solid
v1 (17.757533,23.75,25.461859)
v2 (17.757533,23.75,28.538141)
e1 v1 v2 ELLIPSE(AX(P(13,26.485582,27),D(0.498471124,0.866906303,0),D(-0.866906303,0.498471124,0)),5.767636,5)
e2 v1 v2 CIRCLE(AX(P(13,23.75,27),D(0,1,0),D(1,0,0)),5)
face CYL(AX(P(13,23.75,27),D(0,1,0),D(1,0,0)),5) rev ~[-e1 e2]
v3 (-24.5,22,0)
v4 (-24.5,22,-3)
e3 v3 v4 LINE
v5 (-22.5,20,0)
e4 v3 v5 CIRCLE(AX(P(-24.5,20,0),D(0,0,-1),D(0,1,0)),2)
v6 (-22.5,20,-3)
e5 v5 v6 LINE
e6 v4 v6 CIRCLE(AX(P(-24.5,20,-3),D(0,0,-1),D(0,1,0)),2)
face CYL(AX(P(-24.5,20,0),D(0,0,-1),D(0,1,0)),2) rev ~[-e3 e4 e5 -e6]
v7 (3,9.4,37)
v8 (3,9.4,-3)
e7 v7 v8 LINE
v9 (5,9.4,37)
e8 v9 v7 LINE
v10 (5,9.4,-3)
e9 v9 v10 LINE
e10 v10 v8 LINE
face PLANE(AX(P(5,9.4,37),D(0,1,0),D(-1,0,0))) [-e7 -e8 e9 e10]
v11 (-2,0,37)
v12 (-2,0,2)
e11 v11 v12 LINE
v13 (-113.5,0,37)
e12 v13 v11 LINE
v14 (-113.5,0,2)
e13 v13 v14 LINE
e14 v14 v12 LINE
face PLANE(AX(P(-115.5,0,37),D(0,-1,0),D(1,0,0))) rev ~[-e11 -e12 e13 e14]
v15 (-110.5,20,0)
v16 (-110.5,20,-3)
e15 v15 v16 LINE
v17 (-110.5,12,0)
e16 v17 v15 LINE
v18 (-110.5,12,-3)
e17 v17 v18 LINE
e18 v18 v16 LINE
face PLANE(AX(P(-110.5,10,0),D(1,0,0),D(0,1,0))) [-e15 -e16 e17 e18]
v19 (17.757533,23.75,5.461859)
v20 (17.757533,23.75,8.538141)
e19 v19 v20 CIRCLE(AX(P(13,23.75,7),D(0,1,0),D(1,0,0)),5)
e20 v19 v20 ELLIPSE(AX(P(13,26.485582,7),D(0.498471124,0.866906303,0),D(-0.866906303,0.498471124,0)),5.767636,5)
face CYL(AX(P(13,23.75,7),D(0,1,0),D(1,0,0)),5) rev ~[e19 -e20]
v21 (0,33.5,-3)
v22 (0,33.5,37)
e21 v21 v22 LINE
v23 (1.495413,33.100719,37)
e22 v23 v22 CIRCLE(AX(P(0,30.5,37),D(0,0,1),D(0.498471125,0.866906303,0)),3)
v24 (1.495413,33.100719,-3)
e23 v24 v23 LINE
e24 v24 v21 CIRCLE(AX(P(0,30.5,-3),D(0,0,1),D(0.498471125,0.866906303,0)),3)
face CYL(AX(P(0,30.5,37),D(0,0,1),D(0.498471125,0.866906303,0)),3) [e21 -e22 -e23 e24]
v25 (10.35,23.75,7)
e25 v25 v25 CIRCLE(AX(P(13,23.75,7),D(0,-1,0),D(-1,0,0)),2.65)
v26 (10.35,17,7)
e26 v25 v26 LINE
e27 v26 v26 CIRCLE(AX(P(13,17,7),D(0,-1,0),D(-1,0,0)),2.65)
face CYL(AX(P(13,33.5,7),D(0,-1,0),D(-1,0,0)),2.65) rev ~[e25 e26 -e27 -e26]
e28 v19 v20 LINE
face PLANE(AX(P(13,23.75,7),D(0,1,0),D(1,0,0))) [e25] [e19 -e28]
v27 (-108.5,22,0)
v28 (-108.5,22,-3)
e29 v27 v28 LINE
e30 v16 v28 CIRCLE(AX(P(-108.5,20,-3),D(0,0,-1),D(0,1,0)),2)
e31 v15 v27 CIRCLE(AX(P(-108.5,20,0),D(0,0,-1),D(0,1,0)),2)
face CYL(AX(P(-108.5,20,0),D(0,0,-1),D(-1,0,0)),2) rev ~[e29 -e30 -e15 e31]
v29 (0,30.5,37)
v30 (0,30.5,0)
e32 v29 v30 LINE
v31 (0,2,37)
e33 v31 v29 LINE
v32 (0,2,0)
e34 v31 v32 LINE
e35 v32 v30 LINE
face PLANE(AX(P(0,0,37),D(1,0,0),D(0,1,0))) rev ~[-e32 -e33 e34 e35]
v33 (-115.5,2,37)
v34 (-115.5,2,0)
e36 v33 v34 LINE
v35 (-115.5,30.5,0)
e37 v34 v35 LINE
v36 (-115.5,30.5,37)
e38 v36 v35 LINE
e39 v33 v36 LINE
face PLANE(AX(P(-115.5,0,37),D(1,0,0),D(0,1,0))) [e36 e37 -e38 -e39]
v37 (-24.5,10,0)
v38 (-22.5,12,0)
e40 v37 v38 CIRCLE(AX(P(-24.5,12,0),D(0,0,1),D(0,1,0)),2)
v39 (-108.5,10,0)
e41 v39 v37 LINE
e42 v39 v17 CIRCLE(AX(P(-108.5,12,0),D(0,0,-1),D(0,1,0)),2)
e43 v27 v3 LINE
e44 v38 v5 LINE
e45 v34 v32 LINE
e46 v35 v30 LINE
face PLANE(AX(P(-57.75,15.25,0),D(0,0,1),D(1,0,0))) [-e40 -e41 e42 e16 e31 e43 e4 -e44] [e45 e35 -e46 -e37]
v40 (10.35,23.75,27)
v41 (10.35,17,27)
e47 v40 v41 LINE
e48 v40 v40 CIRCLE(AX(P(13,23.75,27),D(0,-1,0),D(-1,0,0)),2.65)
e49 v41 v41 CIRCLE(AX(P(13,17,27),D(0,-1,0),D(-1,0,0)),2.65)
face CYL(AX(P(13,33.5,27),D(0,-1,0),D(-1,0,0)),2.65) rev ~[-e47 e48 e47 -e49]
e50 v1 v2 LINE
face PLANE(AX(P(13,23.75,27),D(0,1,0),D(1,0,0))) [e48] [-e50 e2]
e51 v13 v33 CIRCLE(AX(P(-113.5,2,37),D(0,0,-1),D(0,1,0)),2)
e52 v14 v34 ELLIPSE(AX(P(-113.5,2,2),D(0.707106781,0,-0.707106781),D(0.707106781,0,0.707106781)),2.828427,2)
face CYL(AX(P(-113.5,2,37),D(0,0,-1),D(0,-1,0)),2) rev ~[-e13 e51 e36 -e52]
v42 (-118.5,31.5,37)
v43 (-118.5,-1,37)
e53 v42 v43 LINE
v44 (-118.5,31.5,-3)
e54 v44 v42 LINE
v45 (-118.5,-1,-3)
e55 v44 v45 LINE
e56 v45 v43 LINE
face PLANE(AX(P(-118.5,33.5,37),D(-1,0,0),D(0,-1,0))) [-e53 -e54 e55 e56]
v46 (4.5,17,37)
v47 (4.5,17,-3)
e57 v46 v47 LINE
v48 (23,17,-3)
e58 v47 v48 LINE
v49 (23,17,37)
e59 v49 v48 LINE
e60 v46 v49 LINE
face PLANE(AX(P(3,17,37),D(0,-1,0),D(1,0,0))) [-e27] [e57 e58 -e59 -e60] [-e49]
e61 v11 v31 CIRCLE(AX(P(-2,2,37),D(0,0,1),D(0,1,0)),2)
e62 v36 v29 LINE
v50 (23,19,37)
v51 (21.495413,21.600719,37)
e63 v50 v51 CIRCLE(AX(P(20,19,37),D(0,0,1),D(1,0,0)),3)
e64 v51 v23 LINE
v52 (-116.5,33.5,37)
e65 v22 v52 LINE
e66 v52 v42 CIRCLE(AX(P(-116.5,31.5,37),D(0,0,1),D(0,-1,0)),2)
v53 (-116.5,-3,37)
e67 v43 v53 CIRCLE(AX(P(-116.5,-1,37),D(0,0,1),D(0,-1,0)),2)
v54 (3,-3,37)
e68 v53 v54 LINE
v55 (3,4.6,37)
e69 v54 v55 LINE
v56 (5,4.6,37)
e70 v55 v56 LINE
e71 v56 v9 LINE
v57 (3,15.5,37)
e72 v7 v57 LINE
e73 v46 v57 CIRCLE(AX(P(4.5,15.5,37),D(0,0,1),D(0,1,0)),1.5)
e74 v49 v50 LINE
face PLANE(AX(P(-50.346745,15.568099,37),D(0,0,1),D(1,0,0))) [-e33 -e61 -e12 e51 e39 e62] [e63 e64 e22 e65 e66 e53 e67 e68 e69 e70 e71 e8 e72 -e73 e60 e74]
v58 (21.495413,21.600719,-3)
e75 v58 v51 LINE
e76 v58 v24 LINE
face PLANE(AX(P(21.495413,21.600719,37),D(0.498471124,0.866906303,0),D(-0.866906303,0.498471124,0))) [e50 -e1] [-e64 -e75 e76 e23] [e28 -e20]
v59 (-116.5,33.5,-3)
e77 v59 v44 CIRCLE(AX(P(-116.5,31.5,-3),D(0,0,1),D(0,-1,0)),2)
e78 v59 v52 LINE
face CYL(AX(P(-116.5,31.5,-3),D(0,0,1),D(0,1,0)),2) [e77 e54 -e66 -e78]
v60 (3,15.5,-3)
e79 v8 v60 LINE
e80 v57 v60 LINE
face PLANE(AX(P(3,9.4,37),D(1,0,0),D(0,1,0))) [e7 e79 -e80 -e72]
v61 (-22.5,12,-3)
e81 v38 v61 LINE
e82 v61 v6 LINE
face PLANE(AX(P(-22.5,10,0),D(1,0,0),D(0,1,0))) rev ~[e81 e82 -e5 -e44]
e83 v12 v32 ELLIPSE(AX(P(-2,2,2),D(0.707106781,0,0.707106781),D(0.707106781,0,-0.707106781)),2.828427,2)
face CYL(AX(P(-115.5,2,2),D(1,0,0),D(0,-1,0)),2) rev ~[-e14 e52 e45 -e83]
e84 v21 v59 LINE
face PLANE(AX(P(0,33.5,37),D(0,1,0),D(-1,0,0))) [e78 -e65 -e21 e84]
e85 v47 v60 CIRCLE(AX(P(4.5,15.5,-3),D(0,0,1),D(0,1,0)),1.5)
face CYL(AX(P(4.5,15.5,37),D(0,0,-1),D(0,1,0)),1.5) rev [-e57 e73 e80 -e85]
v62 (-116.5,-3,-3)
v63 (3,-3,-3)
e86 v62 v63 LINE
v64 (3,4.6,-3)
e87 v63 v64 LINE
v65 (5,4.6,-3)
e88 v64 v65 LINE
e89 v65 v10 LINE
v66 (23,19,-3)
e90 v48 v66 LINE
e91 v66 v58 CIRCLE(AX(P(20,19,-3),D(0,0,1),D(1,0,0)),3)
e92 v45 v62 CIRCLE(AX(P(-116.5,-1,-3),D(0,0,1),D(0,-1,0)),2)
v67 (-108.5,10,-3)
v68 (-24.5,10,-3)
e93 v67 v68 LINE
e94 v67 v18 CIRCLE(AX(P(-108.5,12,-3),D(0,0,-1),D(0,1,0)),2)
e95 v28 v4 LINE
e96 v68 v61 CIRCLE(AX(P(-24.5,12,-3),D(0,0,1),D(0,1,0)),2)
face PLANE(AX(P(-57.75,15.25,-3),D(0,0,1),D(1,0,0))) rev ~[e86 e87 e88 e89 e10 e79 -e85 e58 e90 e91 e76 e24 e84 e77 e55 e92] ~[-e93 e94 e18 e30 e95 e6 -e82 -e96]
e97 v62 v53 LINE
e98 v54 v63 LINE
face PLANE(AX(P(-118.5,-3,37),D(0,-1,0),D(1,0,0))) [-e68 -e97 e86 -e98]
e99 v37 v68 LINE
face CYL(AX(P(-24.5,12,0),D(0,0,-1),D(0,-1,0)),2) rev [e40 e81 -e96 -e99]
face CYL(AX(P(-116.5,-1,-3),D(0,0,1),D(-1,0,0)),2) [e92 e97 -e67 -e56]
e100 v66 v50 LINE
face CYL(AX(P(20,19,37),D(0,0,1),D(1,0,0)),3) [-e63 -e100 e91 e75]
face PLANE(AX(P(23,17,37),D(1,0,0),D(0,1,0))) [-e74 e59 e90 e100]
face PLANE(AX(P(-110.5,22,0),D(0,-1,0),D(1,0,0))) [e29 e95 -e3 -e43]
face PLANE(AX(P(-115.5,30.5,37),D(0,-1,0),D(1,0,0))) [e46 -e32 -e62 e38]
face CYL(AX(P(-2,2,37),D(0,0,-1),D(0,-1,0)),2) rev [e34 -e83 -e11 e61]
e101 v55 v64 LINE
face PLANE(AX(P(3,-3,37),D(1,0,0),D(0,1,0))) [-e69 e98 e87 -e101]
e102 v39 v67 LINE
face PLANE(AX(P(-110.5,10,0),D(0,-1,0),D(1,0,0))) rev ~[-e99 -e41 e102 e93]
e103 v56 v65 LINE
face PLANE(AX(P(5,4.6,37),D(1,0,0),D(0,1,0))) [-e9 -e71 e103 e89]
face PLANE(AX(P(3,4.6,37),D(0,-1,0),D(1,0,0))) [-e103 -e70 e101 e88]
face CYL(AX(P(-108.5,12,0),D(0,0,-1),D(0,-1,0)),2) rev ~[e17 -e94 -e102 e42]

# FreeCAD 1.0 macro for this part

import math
import FreeCAD as App
import Part
import Sketcher

V = App.Vector


def edges_at(feature, points):
    """Names of the edges that pass closest to the given points."""
    edges = feature.Shape.Edges
    near = lambda p: min(range(len(edges)), key=lambda i: edges[i].distToShape(Part.Vertex(*p))[0])
    return sorted({f"Edge{near(p) + 1}" for p in points})

doc = App.newDocument("Part")
body = doc.addObject("PartDesign::Body", "Body")

sketch1 = doc.addObject("Sketcher::SketchObject", "Sketch")
body.addObject(sketch1)
sketch1.AttachmentSupport = (doc.XY_Plane, [""])
sketch1.MapMode = "FlatFace"
sketch1.addGeometry([
    Part.LineSegment(V(23, 17, 0), V(23, 19, 0)),
    Part.ArcOfCircle(Part.Circle(V(20, 19, 0), V(0, 0, 1), 3), math.radians(0), math.radians(60.101098)),
    Part.LineSegment(V(21.495413, 21.600719, 0), V(1.495413, 33.100719, 0)),
    Part.ArcOfCircle(Part.Circle(V(0, 30.5, 0), V(0, 0, 1), 3), math.radians(60.101098), math.radians(90)),
    Part.LineSegment(V(0, 33.5, 0), V(-118.5, 33.5, 0)),
    Part.LineSegment(V(-118.5, 33.5, 0), V(-118.5, -3, 0)),
    Part.LineSegment(V(-118.5, -3, 0), V(3, -3, 0)),
    Part.LineSegment(V(3, -3, 0), V(3, 4.6, 0)),
    Part.LineSegment(V(3, 4.6, 0), V(5, 4.6, 0)),
    Part.LineSegment(V(5, 4.6, 0), V(5, 9.4, 0)),
    Part.LineSegment(V(5, 9.4, 0), V(3, 9.4, 0)),
    Part.LineSegment(V(3, 9.4, 0), V(3, 17, 0)),
    Part.LineSegment(V(3, 17, 0), V(23, 17, 0)),
    Part.LineSegment(V(-22.5, 10, 0), V(-110.5, 10, 0)),
    Part.LineSegment(V(-110.5, 10, 0), V(-110.5, 22, 0)),
    Part.LineSegment(V(-110.5, 22, 0), V(-22.5, 22, 0)),
    Part.LineSegment(V(-22.5, 22, 0), V(-22.5, 10, 0)),
], False)
sketch1.addConstraint([
    Sketcher.Constraint("Tangent", 0, 2, 1, 1),
    Sketcher.Constraint("Tangent", 1, 2, 2, 1),
    Sketcher.Constraint("Tangent", 2, 2, 3, 1),
    Sketcher.Constraint("Tangent", 3, 2, 4, 1),
    Sketcher.Constraint("Coincident", 4, 2, 5, 1),
    Sketcher.Constraint("Coincident", 5, 2, 6, 1),
    Sketcher.Constraint("Coincident", 6, 2, 7, 1),
    Sketcher.Constraint("Coincident", 7, 2, 8, 1),
    Sketcher.Constraint("Coincident", 8, 2, 9, 1),
    Sketcher.Constraint("Coincident", 9, 2, 10, 1),
    Sketcher.Constraint("Coincident", 10, 2, 11, 1),
    Sketcher.Constraint("Coincident", 11, 2, 12, 1),
    Sketcher.Constraint("Coincident", 12, 2, 0, 1),
    Sketcher.Constraint("Coincident", 13, 2, 14, 1),
    Sketcher.Constraint("Coincident", 14, 2, 15, 1),
    Sketcher.Constraint("Coincident", 15, 2, 16, 1),
    Sketcher.Constraint("Coincident", 16, 2, 13, 1),
    Sketcher.Constraint("Vertical", 0),
    Sketcher.Constraint("Horizontal", 4),
    Sketcher.Constraint("Vertical", 5),
    Sketcher.Constraint("Horizontal", 6),
    Sketcher.Constraint("Vertical", 7),
    Sketcher.Constraint("Horizontal", 8),
    Sketcher.Constraint("Vertical", 9),
    Sketcher.Constraint("Horizontal", 10),
    Sketcher.Constraint("Vertical", 11),
    Sketcher.Constraint("Horizontal", 12),
    Sketcher.Constraint("Horizontal", 13),
    Sketcher.Constraint("Vertical", 14),
    Sketcher.Constraint("Horizontal", 15),
    Sketcher.Constraint("Vertical", 16),
    Sketcher.Constraint("Equal", 1, 3),
    Sketcher.Constraint("PointOnObject", 3, 3, -2),
    Sketcher.Constraint("Vertical", 7, 2, 10, 2),
    Sketcher.Constraint("Equal", 10, 0),
    Sketcher.Constraint("Equal", 7, 11),
    Sketcher.Constraint("Radius", 1, 3.0),
    Sketcher.Constraint("DistanceX", 8, 1, 8, 2, 2.0),
    Sketcher.Constraint("DistanceX", 12, 1, 12, 2, 20.0),
    Sketcher.Constraint("DistanceX", 13, 2, 13, 1, 88.0),
    Sketcher.Constraint("DistanceY", 14, 1, 14, 2, 12.0),
    Sketcher.Constraint("DistanceX", 4, 2, 4, 1, 118.5),
    Sketcher.Constraint("DistanceX", 6, 1, 6, 2, 121.5),
    Sketcher.Constraint("DistanceY", 5, 2, 5, 1, 36.5),
    Sketcher.Constraint("DistanceY", 7, 1, 7, 2, 7.6),
    Sketcher.Constraint("DistanceY", 9, 1, 9, 2, 4.8),
    Sketcher.Constraint("DistanceY", -1, 1, 1, 3, 19.0),
    Sketcher.Constraint("DistanceY", -1, 1, 13, 2, 10.0),
    Sketcher.Constraint("DistanceX", 5, 2, 13, 2, 8.0),
])
pad1 = doc.addObject("PartDesign::Pad", "Pad")
body.addObject(pad1)
pad1.Profile = sketch1
pad1.Length = 3
pad1.Reversed = True

sketch2 = doc.addObject("Sketcher::SketchObject", "Sketch001")
body.addObject(sketch2)
sketch2.AttachmentSupport = (doc.XY_Plane, [""])
sketch2.MapMode = "FlatFace"
sketch2.AttachmentOffset = App.Placement(V(0, 0, 37), App.Rotation())
sketch2.addGeometry([
    Part.LineSegment(V(23, 17, 0), V(23, 19, 0)),
    Part.ArcOfCircle(Part.Circle(V(20, 19, 0), V(0, 0, 1), 3), math.radians(0), math.radians(60.101098)),
    Part.LineSegment(V(21.495413, 21.600719, 0), V(1.495413, 33.100719, 0)),
    Part.ArcOfCircle(Part.Circle(V(0, 30.5, 0), V(0, 0, 1), 3), math.radians(60.101098), math.radians(90)),
    Part.LineSegment(V(0, 33.5, 0), V(-118.5, 33.5, 0)),
    Part.LineSegment(V(-118.5, 33.5, 0), V(-118.5, -3, 0)),
    Part.LineSegment(V(-118.5, -3, 0), V(3, -3, 0)),
    Part.LineSegment(V(3, -3, 0), V(3, 4.6, 0)),
    Part.LineSegment(V(3, 4.6, 0), V(5, 4.6, 0)),
    Part.LineSegment(V(5, 4.6, 0), V(5, 9.4, 0)),
    Part.LineSegment(V(5, 9.4, 0), V(3, 9.4, 0)),
    Part.LineSegment(V(3, 9.4, 0), V(3, 17, 0)),
    Part.LineSegment(V(3, 17, 0), V(23, 17, 0)),
    Part.LineSegment(V(0, 0, 0), V(-115.5, 0, 0)),
    Part.LineSegment(V(-115.5, 0, 0), V(-115.5, 30.5, 0)),
    Part.LineSegment(V(-115.5, 30.5, 0), V(0, 30.5, 0)),
    Part.LineSegment(V(0, 30.5, 0), V(0, 0, 0)),
], False)
sketch2.addConstraint([
    Sketcher.Constraint("Tangent", 0, 2, 1, 1),
    Sketcher.Constraint("Tangent", 1, 2, 2, 1),
    Sketcher.Constraint("Tangent", 2, 2, 3, 1),
    Sketcher.Constraint("Tangent", 3, 2, 4, 1),
    Sketcher.Constraint("Coincident", 4, 2, 5, 1),
    Sketcher.Constraint("Coincident", 5, 2, 6, 1),
    Sketcher.Constraint("Coincident", 6, 2, 7, 1),
    Sketcher.Constraint("Coincident", 7, 2, 8, 1),
    Sketcher.Constraint("Coincident", 8, 2, 9, 1),
    Sketcher.Constraint("Coincident", 9, 2, 10, 1),
    Sketcher.Constraint("Coincident", 10, 2, 11, 1),
    Sketcher.Constraint("Coincident", 11, 2, 12, 1),
    Sketcher.Constraint("Coincident", 12, 2, 0, 1),
    Sketcher.Constraint("Coincident", 13, 2, 14, 1),
    Sketcher.Constraint("Coincident", 14, 2, 15, 1),
    Sketcher.Constraint("Coincident", 15, 2, 16, 1),
    Sketcher.Constraint("Coincident", 16, 2, 13, 1),
    Sketcher.Constraint("Vertical", 0),
    Sketcher.Constraint("Horizontal", 4),
    Sketcher.Constraint("Vertical", 5),
    Sketcher.Constraint("Horizontal", 6),
    Sketcher.Constraint("Vertical", 7),
    Sketcher.Constraint("Horizontal", 8),
    Sketcher.Constraint("Vertical", 9),
    Sketcher.Constraint("Horizontal", 10),
    Sketcher.Constraint("Vertical", 11),
    Sketcher.Constraint("Horizontal", 12),
    Sketcher.Constraint("Horizontal", 13),
    Sketcher.Constraint("Vertical", 14),
    Sketcher.Constraint("Horizontal", 15),
    Sketcher.Constraint("Vertical", 16),
    Sketcher.Constraint("Coincident", 16, 2, -1, 1),
    Sketcher.Constraint("Coincident", 15, 2, 3, 3),
    Sketcher.Constraint("Equal", 1, 3),
    Sketcher.Constraint("Vertical", 7, 2, 10, 2),
    Sketcher.Constraint("Equal", 10, 0),
    Sketcher.Constraint("Equal", 7, 11),
    Sketcher.Constraint("Radius", 1, 3.0),
    Sketcher.Constraint("DistanceX", 8, 1, 8, 2, 2.0),
    Sketcher.Constraint("DistanceX", 12, 1, 12, 2, 20.0),
    Sketcher.Constraint("DistanceX", 4, 2, 4, 1, 118.5),
    Sketcher.Constraint("DistanceX", 6, 1, 6, 2, 121.5),
    Sketcher.Constraint("DistanceX", 13, 2, 13, 1, 115.5),
    Sketcher.Constraint("DistanceY", 5, 2, 5, 1, 36.5),
    Sketcher.Constraint("DistanceY", 7, 1, 7, 2, 7.6),
    Sketcher.Constraint("DistanceY", 9, 1, 9, 2, 4.8),
    Sketcher.Constraint("DistanceY", 14, 1, 14, 2, 30.5),
])
pad2 = doc.addObject("PartDesign::Pad", "Pad001")
body.addObject(pad2)
pad2.Profile = sketch2
pad2.Length = 37
pad2.Reversed = True

sketch3 = doc.addObject("Sketcher::SketchObject", "Sketch002")
body.addObject(sketch3)
sketch3.AttachmentSupport = (doc.XZ_Plane, [""])
sketch3.MapMode = "FlatFace"
sketch3.AttachmentOffset = App.Placement(V(0, 0, -33.5), App.Rotation())
sketch3.addGeometry([
    Part.Circle(V(13, 27, 0), V(0, 0, 1), 2.65),
    Part.Circle(V(13, 7, 0), V(0, 0, 1), 2.65),
], False)
sketch3.addConstraint([
    Sketcher.Constraint("Equal", 0, 1),
    Sketcher.Constraint("Vertical", 0, 3, 1, 3),
    Sketcher.Constraint("Diameter", 0, 5.3),
    Sketcher.Constraint("DistanceX", -1, 1, 0, 3, 13.0),
    Sketcher.Constraint("DistanceY", -1, 1, 0, 3, 27.0),
    Sketcher.Constraint("DistanceY", -1, 1, 1, 3, 7.0),
])
doc.recompute()
hole = doc.addObject("PartDesign::Hole", "Hole")
body.addObject(hole)
hole.Profile = sketch3
hole.ThreadType = "None"
hole.Diameter = 5.3
hole.DepthType = "ThroughAll"
hole.HoleCutType = "Counterbore"
hole.HoleCutDiameter = 10
hole.HoleCutDepth = 9.75
hole.Reversed = True
doc.recompute()

fillet = doc.addObject("PartDesign::Fillet", "Fillet")
body.addObject(fillet)
fillet.Base = (hole, edges_at(hole, [
    (-22.5, 22, -1.5),
    (-110.5, 22, -1.5),
    (-110.5, 10, -1.5),
    (-22.5, 10, -1.5),
    (-118.5, -3, 17),
    (-118.5, 33.5, 17),
    (0, 0, 18.5),
    (-57.75, 0, 0),
    (-115.5, 0, 18.5),
]))
fillet.Radius = 2
doc.recompute()

fillet2 = doc.addObject("PartDesign::Fillet", "Fillet001")
body.addObject(fillet2)
fillet2.Base = (fillet, edges_at(fillet, [(3, 17, 17)]))
fillet2.Radius = 1.5

doc.recompute()
